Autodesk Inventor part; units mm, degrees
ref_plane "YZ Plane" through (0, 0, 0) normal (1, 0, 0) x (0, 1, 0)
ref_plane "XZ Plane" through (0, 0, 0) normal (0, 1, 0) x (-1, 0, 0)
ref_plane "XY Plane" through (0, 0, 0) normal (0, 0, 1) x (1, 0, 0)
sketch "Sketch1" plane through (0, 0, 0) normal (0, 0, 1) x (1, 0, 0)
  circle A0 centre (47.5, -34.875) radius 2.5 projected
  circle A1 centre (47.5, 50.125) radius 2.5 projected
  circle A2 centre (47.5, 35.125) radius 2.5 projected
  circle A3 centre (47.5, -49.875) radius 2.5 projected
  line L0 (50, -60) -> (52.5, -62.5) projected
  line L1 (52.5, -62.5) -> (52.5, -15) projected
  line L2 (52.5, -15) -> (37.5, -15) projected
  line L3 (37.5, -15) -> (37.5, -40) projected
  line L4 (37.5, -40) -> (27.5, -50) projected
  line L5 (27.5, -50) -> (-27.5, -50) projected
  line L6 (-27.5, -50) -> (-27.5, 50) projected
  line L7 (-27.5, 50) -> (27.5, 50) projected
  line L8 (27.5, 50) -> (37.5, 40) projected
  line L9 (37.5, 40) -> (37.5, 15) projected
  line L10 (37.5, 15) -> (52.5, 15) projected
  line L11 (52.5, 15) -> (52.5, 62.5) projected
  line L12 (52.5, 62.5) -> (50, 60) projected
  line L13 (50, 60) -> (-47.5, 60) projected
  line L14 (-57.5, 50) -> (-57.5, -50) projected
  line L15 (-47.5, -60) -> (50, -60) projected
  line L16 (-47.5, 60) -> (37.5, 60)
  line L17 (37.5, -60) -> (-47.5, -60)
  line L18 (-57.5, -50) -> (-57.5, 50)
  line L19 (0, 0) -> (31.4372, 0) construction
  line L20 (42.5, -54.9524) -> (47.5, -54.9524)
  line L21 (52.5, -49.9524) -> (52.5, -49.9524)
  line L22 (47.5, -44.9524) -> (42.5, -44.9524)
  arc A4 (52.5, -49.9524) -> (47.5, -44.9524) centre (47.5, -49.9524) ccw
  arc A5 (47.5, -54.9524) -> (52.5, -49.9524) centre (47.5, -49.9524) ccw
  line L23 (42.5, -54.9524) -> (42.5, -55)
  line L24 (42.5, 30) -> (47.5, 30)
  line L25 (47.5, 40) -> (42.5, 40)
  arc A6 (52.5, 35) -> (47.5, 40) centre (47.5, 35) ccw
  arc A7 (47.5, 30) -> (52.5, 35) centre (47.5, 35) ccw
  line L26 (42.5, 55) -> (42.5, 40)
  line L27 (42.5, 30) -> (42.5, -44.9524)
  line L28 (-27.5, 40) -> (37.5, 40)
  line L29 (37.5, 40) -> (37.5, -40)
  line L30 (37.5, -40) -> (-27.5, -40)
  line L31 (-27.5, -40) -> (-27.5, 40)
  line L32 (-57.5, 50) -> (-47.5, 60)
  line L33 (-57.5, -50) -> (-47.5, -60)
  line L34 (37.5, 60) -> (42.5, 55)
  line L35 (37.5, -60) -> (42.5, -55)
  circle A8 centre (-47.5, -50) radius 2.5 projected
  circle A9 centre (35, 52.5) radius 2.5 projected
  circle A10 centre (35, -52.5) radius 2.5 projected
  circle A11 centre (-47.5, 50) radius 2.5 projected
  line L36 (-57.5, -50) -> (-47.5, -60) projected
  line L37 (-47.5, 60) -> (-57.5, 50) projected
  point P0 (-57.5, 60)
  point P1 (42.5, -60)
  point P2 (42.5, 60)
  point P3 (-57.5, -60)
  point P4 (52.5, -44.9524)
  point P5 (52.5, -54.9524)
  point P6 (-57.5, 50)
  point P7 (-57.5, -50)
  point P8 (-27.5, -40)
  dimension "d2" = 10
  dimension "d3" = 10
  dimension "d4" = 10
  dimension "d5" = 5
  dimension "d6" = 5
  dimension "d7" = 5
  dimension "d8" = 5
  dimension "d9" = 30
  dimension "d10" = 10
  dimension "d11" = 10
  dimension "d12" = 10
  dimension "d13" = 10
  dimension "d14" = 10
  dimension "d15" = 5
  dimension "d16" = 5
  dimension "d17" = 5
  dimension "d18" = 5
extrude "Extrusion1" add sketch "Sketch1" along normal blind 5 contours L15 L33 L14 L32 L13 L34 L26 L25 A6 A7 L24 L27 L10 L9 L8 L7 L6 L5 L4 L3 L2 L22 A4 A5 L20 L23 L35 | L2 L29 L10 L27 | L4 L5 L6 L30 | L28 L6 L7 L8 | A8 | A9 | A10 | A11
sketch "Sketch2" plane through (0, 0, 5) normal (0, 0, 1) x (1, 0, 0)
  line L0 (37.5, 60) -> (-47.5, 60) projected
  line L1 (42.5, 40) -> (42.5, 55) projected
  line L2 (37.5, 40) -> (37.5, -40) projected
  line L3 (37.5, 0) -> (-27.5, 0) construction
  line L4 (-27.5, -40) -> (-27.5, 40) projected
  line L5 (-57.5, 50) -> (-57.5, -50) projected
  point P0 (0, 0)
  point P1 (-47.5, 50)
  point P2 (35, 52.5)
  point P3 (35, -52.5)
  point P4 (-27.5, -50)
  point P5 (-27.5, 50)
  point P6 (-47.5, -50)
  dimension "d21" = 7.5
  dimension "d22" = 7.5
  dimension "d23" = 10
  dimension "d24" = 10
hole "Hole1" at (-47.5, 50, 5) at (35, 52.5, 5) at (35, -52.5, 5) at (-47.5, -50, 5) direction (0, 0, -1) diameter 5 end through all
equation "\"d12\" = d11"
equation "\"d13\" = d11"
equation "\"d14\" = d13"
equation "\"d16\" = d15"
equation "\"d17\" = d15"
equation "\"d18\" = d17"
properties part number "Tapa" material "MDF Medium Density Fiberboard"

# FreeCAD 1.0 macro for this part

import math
import FreeCAD as App
import Part
import Sketcher

V = App.Vector
Q = App.Units.Quantity


def add_polygon(sketch, points):
    """Adds a closed chain of lines whose ends are joined by coincident constraints."""
    first, n = sketch.GeometryCount, len(points)
    for a, b in zip(points, points[1:] + points[:1]):
        sketch.addGeometry(Part.LineSegment(App.Vector(*a, 0), App.Vector(*b, 0)), False)
    for i in range(n):
        sketch.addConstraint(Sketcher.Constraint("Coincident", first + i, 2, first + (i + 1) % n, 1))

doc = App.newDocument("Part")
params = doc.addObject("Spreadsheet::Sheet", "Params")
for row, (alias, value) in enumerate([
    ("sketch1_diameter", "5 mm"),
    ("sketch1_radius", "5 mm"),
    ("sketch1_width", "5 mm"),
    ("sketch1_width2", "85 mm"),
    ("pad1_length", "5 mm"),
    ("sketch2_diameter", "5 mm"),
    ("hole_diameter", "5 mm"),
], start=1):
    params.set(f"A{row}", alias)
    params.set(f"B{row}", "=" + value)
    params.setAlias(f"B{row}", alias)

body = doc.addObject("PartDesign::Body", "Body")

# Sketch on XY plane
sketch1 = doc.addObject("Sketcher::SketchObject", "Sketch")
body.addObject(sketch1)
sketch1.AttachmentSupport = (doc.XY_Plane, [""])
sketch1.MapMode = "FlatFace"
sketch1.addGeometry(Part.LineSegment(V(-47.5, -60, 0), V(37.5, -60, 0)), False)  # 0
sketch1.addGeometry(Part.LineSegment(V(37.5, -60, 0), V(42.5, -55, 0)), False)  # 1
sketch1.addGeometry(Part.LineSegment(V(42.5, -55, 0), V(42.5, -54.9524, 0)), False)  # 2
sketch1.addGeometry(Part.LineSegment(V(42.5, -54.9524, 0), V(47.5, -54.9524, 0)), False)  # 3
sketch1.addGeometry(Part.ArcOfCircle(Part.Circle(V(47.5, -49.9524, 0), V(0, 0, 1), 5), math.radians(-90), math.radians(90)), False)  # 4
sketch1.addGeometry(Part.LineSegment(V(47.5, -44.9524, 0), V(42.5, -44.9524, 0)), False)  # 5
sketch1.addGeometry(Part.LineSegment(V(42.5, -44.9524, 0), V(42.5, 30, 0)), False)  # 6
sketch1.addGeometry(Part.LineSegment(V(42.5, 30, 0), V(47.5, 30, 0)), False)  # 7
sketch1.addGeometry(Part.ArcOfCircle(Part.Circle(V(47.5, 35, 0), V(0, 0, 1), 5), math.radians(-90), math.radians(90)), False)  # 8
sketch1.addGeometry(Part.LineSegment(V(47.5, 40, 0), V(42.5, 40, 0)), False)  # 9
sketch1.addGeometry(Part.LineSegment(V(42.5, 40, 0), V(42.5, 55, 0)), False)  # 10
sketch1.addGeometry(Part.LineSegment(V(42.5, 55, 0), V(37.5, 60, 0)), False)  # 11
sketch1.addGeometry(Part.LineSegment(V(37.5, 60, 0), V(-47.5, 60, 0)), False)  # 12
sketch1.addGeometry(Part.LineSegment(V(-47.5, 60, 0), V(-57.5, 50, 0)), False)  # 13
sketch1.addGeometry(Part.LineSegment(V(-57.5, 50, 0), V(-57.5, -50, 0)), False)  # 14
sketch1.addGeometry(Part.LineSegment(V(-57.5, -50, 0), V(-47.5, -60, 0)), False)  # 15
add_polygon(sketch1, [(37.5, 40), (37.5, -40), (-27.5, -40), (-27.5, 40)])  # lines 16-19
sketch1.addGeometry(Part.Circle(V(47.5, -49.875, 0), V(0, 0, 1), 2.5), False)  # 20
sketch1.addGeometry(Part.Circle(V(47.5, 35.125, 0), V(0, 0, 1), 2.5), False)  # 21
sketch1.addConstraint([
    Sketcher.Constraint("Coincident", 0, 2, 1, 1),
    Sketcher.Constraint("Coincident", 1, 2, 2, 1),
    Sketcher.Constraint("Coincident", 2, 2, 3, 1),
    Sketcher.Constraint("Tangent", 3, 2, 4, 1),
    Sketcher.Constraint("Tangent", 4, 2, 5, 1),
    Sketcher.Constraint("Coincident", 5, 2, 6, 1),
    Sketcher.Constraint("Coincident", 6, 2, 7, 1),
    Sketcher.Constraint("Tangent", 7, 2, 8, 1),
    Sketcher.Constraint("Tangent", 8, 2, 9, 1),
    Sketcher.Constraint("Coincident", 9, 2, 10, 1),
    Sketcher.Constraint("Coincident", 10, 2, 11, 1),
    Sketcher.Constraint("Coincident", 11, 2, 12, 1),
    Sketcher.Constraint("Coincident", 12, 2, 13, 1),
    Sketcher.Constraint("Coincident", 13, 2, 14, 1),
    Sketcher.Constraint("Coincident", 14, 2, 15, 1),
    Sketcher.Constraint("Coincident", 15, 2, 0, 1),
    Sketcher.Constraint("Horizontal", 0),
    Sketcher.Constraint("Vertical", 2),
    Sketcher.Constraint("Horizontal", 3),
    Sketcher.Constraint("Horizontal", 5),
    Sketcher.Constraint("Vertical", 6),
    Sketcher.Constraint("Horizontal", 7),
    Sketcher.Constraint("Horizontal", 9),
    Sketcher.Constraint("Vertical", 10),
    Sketcher.Constraint("Horizontal", 12),
    Sketcher.Constraint("Vertical", 14),
    Sketcher.Constraint("Vertical", 16),
    Sketcher.Constraint("Horizontal", 17),
    Sketcher.Constraint("Vertical", 18),
    Sketcher.Constraint("Horizontal", 19),
    Sketcher.Constraint("Equal", 4, 8),
    Sketcher.Constraint("Equal", 20, 21),
    Sketcher.Constraint("Symmetric", 1, 2, 10, 2, -1),
    Sketcher.Constraint("Symmetric", 0, 2, 11, 2, -1),
    Sketcher.Constraint("Perpendicular", 1, 11),
    Sketcher.Constraint("Perpendicular", 11, 13),
    Sketcher.Constraint("Perpendicular", 13, 15),
    Sketcher.Constraint("Horizontal", 9, 2, 18, 2),
    Sketcher.Constraint("Vertical", 4, 3, 8, 3),
    Sketcher.Constraint("Vertical", 8, 3, 20, 3),
    Sketcher.Constraint("Vertical", 20, 3, 21, 3),
    Sketcher.Constraint("Vertical", 2, 2, 5, 2),
    Sketcher.Constraint("Vertical", 12, 2, 15, 2),
    Sketcher.Constraint("Vertical", 11, 2, 16, 2),
    Sketcher.Constraint("Diameter", 20, Q("5 mm")),
    Sketcher.Constraint("Radius", 4, Q("5 mm")),
    Sketcher.Constraint("DistanceX", 3, 1, 3, 2, Q("5 mm")),
    Sketcher.Constraint("DistanceY", -1, 1, 6, 2, Q("30 mm")),
    Sketcher.Constraint("DistanceX", 0, 2, 4, 3, Q("10 mm")),
    Sketcher.Constraint("DistanceY", 6, 2, 12, 2, Q("30 mm")),
    Sketcher.Constraint("DistanceX", 13, 2, 12, 2, Q("10 mm")),
    Sketcher.Constraint("DistanceX", 14, 2, 17, 2, Q("30 mm")),
    Sketcher.Constraint("DistanceY", 14, 2, 17, 2, Q("10 mm")),
    Sketcher.Constraint("DistanceX", 0, 1, 0, 2, Q("85 mm")),
    Sketcher.Constraint("DistanceY", 20, 3, 21, 3, Q("85 mm")),
    Sketcher.Constraint("DistanceX", -1, 1, 4, 3, Q("47.5 mm")),
    Sketcher.Constraint("DistanceY", 2, 1, 2, 2, Q("0.0476 mm")),
    Sketcher.Constraint("DistanceY", 20, 3, -1, 1, Q("49.875 mm")),
])
sketch1.setExpression("Constraints[48]", "Params.sketch1_diameter")
sketch1.setExpression("Constraints[49]", "Params.sketch1_radius")
sketch1.setExpression("Constraints[50]", "Params.sketch1_width")
sketch1.setExpression("Constraints[57]", "Params.sketch1_width2")
pad1 = doc.addObject("PartDesign::Pad", "Pad")
body.addObject(pad1)
pad1.Profile = sketch1
pad1.setExpression("Length", "Params.pad1_length")

# Sketch on XY plane
sketch2 = doc.addObject("Sketcher::SketchObject", "Sketch001")
body.addObject(sketch2)
sketch2.AttachmentSupport = (doc.XY_Plane, [""])
sketch2.MapMode = "FlatFace"
sketch2.AttachmentOffset = App.Placement(V(0, 0, 5), App.Rotation())
sketch2.addGeometry([
    Part.Circle(V(-47.5, 50, 0), V(0, 0, 1), 2.5),
    Part.Circle(V(35, 52.5, 0), V(0, 0, 1), 2.5),
    Part.Circle(V(35, -52.5, 0), V(0, 0, 1), 2.5),
    Part.Circle(V(-47.5, -50, 0), V(0, 0, 1), 2.5),
], False)
sketch2.addConstraint([
    Sketcher.Constraint("Equal", 0, 1),
    Sketcher.Constraint("Equal", 1, 2),
    Sketcher.Constraint("Equal", 2, 3),
    Sketcher.Constraint("Symmetric", 1, 3, 2, 3, -1),
    Sketcher.Constraint("Symmetric", 0, 3, 3, 3, -1),
    Sketcher.Constraint("Diameter", 0, Q("5 mm")),
    Sketcher.Constraint("DistanceY", -1, 1, 0, 3, Q("50 mm")),
    Sketcher.Constraint("DistanceX", -1, 1, 1, 3, Q("35 mm")),
    Sketcher.Constraint("DistanceY", 2, 3, 1, 3, Q("105 mm")),
    Sketcher.Constraint("DistanceX", 0, 3, -1, 1, Q("47.5 mm")),
])
sketch2.setExpression("Constraints[5]", "Params.sketch2_diameter")
doc.recompute()
hole = doc.addObject("PartDesign::Hole", "Hole")
body.addObject(hole)
hole.Profile = sketch2
hole.ThreadType = "None"
hole.setExpression("Diameter", "Params.hole_diameter")
hole.DepthType = "ThroughAll"

doc.recompute()
